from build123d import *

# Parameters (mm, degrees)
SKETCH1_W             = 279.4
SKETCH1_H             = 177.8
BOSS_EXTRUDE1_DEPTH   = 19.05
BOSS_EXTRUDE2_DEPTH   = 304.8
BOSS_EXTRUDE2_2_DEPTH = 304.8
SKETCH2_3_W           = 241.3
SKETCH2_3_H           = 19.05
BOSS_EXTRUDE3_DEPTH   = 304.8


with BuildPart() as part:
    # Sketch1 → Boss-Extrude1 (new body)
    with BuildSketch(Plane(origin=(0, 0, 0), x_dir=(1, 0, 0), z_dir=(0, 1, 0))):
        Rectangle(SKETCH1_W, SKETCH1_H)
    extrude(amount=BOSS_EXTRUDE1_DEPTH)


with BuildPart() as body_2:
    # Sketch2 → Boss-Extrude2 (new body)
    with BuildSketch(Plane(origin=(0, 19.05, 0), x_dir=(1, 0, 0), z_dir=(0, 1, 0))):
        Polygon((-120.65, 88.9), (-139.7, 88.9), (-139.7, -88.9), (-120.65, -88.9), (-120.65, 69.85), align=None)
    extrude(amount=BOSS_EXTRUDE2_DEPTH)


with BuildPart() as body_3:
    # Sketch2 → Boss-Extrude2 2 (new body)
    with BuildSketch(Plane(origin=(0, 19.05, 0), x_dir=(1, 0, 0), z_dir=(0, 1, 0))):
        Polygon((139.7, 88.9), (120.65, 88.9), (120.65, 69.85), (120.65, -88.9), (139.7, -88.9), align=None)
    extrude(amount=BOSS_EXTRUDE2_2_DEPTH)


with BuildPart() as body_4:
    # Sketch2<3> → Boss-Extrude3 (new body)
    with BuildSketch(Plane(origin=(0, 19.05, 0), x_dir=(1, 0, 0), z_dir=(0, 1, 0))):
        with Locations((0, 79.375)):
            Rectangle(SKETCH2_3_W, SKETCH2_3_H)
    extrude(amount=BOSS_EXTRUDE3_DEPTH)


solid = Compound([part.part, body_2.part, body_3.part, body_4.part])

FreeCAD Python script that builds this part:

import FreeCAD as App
import Part
import Sketcher
from FreeCAD import Vector
Q = App.Units.Quantity

doc = App.newDocument("Part")
body = doc.addObject("PartDesign::Body", "Body")

sketch1 = body.newObject("Sketcher::SketchObject", "Sketch")
sketch1.AttachmentSupport = (doc.getObject("XZ_Plane"), [""])
sketch1.MapMode = "FlatFace"
sketch1.addGeometry(Part.LineSegment(Vector(-139.7, -88.9, 0), Vector(-139.7, 88.9, 0)), False)
sketch1.addGeometry(Part.LineSegment(Vector(-139.7, 88.9, 0), Vector(139.7, 88.9, 0)), False)
sketch1.addGeometry(Part.LineSegment(Vector(139.7, 88.9, 0), Vector(139.7, -88.9, 0)), False)
sketch1.addGeometry(Part.LineSegment(Vector(139.7, -88.9, 0), Vector(-139.7, -88.9, 0)), False)
sketch1.addConstraint(Sketcher.Constraint("Coincident", 0, 2, 1, 1))
sketch1.addConstraint(Sketcher.Constraint("Coincident", 1, 2, 2, 1))
sketch1.addConstraint(Sketcher.Constraint("Coincident", 2, 2, 3, 1))
sketch1.addConstraint(Sketcher.Constraint("Coincident", 3, 2, 0, 1))
sketch1.addConstraint(Sketcher.Constraint("Vertical", 0))
sketch1.addConstraint(Sketcher.Constraint("Horizontal", 1))
sketch1.addConstraint(Sketcher.Constraint("Vertical", 2))
sketch1.addConstraint(Sketcher.Constraint("Horizontal", 3))
sketch1.addConstraint(Sketcher.Constraint("Symmetric", 0, 2, 2, 2, -1, 1))
sketch1.addConstraint(Sketcher.Constraint("DistanceX", 1, 1, 1, 2, Q("11 in")))
sketch1.addConstraint(Sketcher.Constraint("DistanceY", 0, 1, 0, 2, Q("7 in")))
pad1 = body.newObject("PartDesign::Pad", "Pad")
pad1.Profile = sketch1
pad1.Length = Q("0.75 in")
pad1.Reversed = True
body2 = doc.addObject("PartDesign::Body", "Body001")

sketch2 = body2.newObject("Sketcher::SketchObject", "Sketch001")
sketch2.AttachmentSupport = (doc.getObject("XZ_Plane001"), [""])
sketch2.MapMode = "FlatFace"
sketch2.AttachmentOffset = App.Placement(Vector(0, 0, -0.75 * 25.4), App.Rotation())
sketch2.addGeometry(Part.LineSegment(Vector(-120.65, -88.9, 0), Vector(-139.7, -88.9, 0)), False)
sketch2.addGeometry(Part.LineSegment(Vector(-139.7, -88.9, 0), Vector(-139.7, 88.9, 0)), False)
sketch2.addGeometry(Part.LineSegment(Vector(-139.7, 88.9, 0), Vector(-120.65, 88.9, 0)), False)
sketch2.addGeometry(Part.LineSegment(Vector(-120.65, 88.9, 0), Vector(-120.65, -88.9, 0)), False)
sketch2.addConstraint(Sketcher.Constraint("Coincident", 0, 2, 1, 1))
sketch2.addConstraint(Sketcher.Constraint("Coincident", 1, 2, 2, 1))
sketch2.addConstraint(Sketcher.Constraint("Coincident", 2, 2, 3, 1))
sketch2.addConstraint(Sketcher.Constraint("Coincident", 3, 2, 0, 1))
sketch2.addConstraint(Sketcher.Constraint("Horizontal", 0))
sketch2.addConstraint(Sketcher.Constraint("Vertical", 1))
sketch2.addConstraint(Sketcher.Constraint("Horizontal", 2))
sketch2.addConstraint(Sketcher.Constraint("Vertical", 3))
sketch2.addConstraint(Sketcher.Constraint("DistanceY", 1, 1, 1, 2, Q("7 in")))
sketch2.addConstraint(Sketcher.Constraint("DistanceX", 0, 2, 0, 1, Q("0.75 in")))
sketch2.addConstraint(Sketcher.Constraint("DistanceX", 0, 2, -1, 1, Q("5.5 in")))
sketch2.addConstraint(Sketcher.Constraint("DistanceY", 0, 2, -1, 1, Q("3.5 in")))
pad2 = body2.newObject("PartDesign::Pad", "Pad001")
pad2.Profile = sketch2
pad2.Length = Q("12 in")
pad2.Reversed = True
body3 = doc.addObject("PartDesign::Body", "Body002")

sketch3 = body3.newObject("Sketcher::SketchObject", "Sketch002")
sketch3.AttachmentSupport = (doc.getObject("XZ_Plane002"), [""])
sketch3.MapMode = "FlatFace"
sketch3.AttachmentOffset = App.Placement(Vector(0, 0, -0.75 * 25.4), App.Rotation())
sketch3.addGeometry(Part.LineSegment(Vector(139.7, -88.9, 0), Vector(120.65, -88.9, 0)), False)
sketch3.addGeometry(Part.LineSegment(Vector(120.65, -88.9, 0), Vector(120.65, 88.9, 0)), False)
sketch3.addGeometry(Part.LineSegment(Vector(120.65, 88.9, 0), Vector(139.7, 88.9, 0)), False)
sketch3.addGeometry(Part.LineSegment(Vector(139.7, 88.9, 0), Vector(139.7, -88.9, 0)), False)
sketch3.addConstraint(Sketcher.Constraint("Coincident", 0, 2, 1, 1))
sketch3.addConstraint(Sketcher.Constraint("Coincident", 1, 2, 2, 1))
sketch3.addConstraint(Sketcher.Constraint("Coincident", 2, 2, 3, 1))
sketch3.addConstraint(Sketcher.Constraint("Coincident", 3, 2, 0, 1))
sketch3.addConstraint(Sketcher.Constraint("Horizontal", 0))
sketch3.addConstraint(Sketcher.Constraint("Vertical", 1))
sketch3.addConstraint(Sketcher.Constraint("Horizontal", 2))
sketch3.addConstraint(Sketcher.Constraint("Vertical", 3))
sketch3.addConstraint(Sketcher.Constraint("DistanceY", 1, 1, 1, 2, Q("7 in")))
sketch3.addConstraint(Sketcher.Constraint("DistanceX", 0, 2, 0, 1, Q("0.75 in")))
sketch3.addConstraint(Sketcher.Constraint("DistanceY", 0, 2, -1, 1, Q("3.5 in")))
sketch3.addConstraint(Sketcher.Constraint("DistanceX", -1, 1, 2, 2, Q("5.5 in")))
pad3 = body3.newObject("PartDesign::Pad", "Pad002")
pad3.Profile = sketch3
pad3.Length = Q("12 in")
pad3.Reversed = True
body4 = doc.addObject("PartDesign::Body", "Body003")

sketch4 = body4.newObject("Sketcher::SketchObject", "Sketch003")
sketch4.AttachmentSupport = (doc.getObject("XZ_Plane003"), [""])
sketch4.MapMode = "FlatFace"
sketch4.AttachmentOffset = App.Placement(Vector(0, 0, -0.75 * 25.4), App.Rotation())
sketch4.addGeometry(Part.LineSegment(Vector(-120.65, -88.9, 0), Vector(-120.65, -69.85, 0)), False)
sketch4.addGeometry(Part.LineSegment(Vector(-120.65, -69.85, 0), Vector(120.65, -69.85, 0)), False)
sketch4.addGeometry(Part.LineSegment(Vector(120.65, -69.85, 0), Vector(120.65, -88.9, 0)), False)
sketch4.addGeometry(Part.LineSegment(Vector(120.65, -88.9, 0), Vector(-120.65, -88.9, 0)), False)
sketch4.addConstraint(Sketcher.Constraint("Coincident", 0, 2, 1, 1))
sketch4.addConstraint(Sketcher.Constraint("Coincident", 1, 2, 2, 1))
sketch4.addConstraint(Sketcher.Constraint("Coincident", 2, 2, 3, 1))
sketch4.addConstraint(Sketcher.Constraint("Coincident", 3, 2, 0, 1))
sketch4.addConstraint(Sketcher.Constraint("Vertical", 0))
sketch4.addConstraint(Sketcher.Constraint("Horizontal", 1))
sketch4.addConstraint(Sketcher.Constraint("Vertical", 2))
sketch4.addConstraint(Sketcher.Constraint("Horizontal", 3))
sketch4.addConstraint(Sketcher.Constraint("DistanceX", 1, 1, 1, 2, Q("9.5 in")))
sketch4.addConstraint(Sketcher.Constraint("DistanceY", 0, 1, 0, 2, Q("0.75 in")))
sketch4.addConstraint(Sketcher.Constraint("DistanceY", 2, 2, -1, 1, Q("3.5 in")))
sketch4.addConstraint(Sketcher.Constraint("DistanceX", 0, 2, -1, 1, Q("4.75 in")))
pad4 = body4.newObject("PartDesign::Pad", "Pad003")
pad4.Profile = sketch4
pad4.Length = Q("12 in")
pad4.Reversed = True

doc.recompute()
